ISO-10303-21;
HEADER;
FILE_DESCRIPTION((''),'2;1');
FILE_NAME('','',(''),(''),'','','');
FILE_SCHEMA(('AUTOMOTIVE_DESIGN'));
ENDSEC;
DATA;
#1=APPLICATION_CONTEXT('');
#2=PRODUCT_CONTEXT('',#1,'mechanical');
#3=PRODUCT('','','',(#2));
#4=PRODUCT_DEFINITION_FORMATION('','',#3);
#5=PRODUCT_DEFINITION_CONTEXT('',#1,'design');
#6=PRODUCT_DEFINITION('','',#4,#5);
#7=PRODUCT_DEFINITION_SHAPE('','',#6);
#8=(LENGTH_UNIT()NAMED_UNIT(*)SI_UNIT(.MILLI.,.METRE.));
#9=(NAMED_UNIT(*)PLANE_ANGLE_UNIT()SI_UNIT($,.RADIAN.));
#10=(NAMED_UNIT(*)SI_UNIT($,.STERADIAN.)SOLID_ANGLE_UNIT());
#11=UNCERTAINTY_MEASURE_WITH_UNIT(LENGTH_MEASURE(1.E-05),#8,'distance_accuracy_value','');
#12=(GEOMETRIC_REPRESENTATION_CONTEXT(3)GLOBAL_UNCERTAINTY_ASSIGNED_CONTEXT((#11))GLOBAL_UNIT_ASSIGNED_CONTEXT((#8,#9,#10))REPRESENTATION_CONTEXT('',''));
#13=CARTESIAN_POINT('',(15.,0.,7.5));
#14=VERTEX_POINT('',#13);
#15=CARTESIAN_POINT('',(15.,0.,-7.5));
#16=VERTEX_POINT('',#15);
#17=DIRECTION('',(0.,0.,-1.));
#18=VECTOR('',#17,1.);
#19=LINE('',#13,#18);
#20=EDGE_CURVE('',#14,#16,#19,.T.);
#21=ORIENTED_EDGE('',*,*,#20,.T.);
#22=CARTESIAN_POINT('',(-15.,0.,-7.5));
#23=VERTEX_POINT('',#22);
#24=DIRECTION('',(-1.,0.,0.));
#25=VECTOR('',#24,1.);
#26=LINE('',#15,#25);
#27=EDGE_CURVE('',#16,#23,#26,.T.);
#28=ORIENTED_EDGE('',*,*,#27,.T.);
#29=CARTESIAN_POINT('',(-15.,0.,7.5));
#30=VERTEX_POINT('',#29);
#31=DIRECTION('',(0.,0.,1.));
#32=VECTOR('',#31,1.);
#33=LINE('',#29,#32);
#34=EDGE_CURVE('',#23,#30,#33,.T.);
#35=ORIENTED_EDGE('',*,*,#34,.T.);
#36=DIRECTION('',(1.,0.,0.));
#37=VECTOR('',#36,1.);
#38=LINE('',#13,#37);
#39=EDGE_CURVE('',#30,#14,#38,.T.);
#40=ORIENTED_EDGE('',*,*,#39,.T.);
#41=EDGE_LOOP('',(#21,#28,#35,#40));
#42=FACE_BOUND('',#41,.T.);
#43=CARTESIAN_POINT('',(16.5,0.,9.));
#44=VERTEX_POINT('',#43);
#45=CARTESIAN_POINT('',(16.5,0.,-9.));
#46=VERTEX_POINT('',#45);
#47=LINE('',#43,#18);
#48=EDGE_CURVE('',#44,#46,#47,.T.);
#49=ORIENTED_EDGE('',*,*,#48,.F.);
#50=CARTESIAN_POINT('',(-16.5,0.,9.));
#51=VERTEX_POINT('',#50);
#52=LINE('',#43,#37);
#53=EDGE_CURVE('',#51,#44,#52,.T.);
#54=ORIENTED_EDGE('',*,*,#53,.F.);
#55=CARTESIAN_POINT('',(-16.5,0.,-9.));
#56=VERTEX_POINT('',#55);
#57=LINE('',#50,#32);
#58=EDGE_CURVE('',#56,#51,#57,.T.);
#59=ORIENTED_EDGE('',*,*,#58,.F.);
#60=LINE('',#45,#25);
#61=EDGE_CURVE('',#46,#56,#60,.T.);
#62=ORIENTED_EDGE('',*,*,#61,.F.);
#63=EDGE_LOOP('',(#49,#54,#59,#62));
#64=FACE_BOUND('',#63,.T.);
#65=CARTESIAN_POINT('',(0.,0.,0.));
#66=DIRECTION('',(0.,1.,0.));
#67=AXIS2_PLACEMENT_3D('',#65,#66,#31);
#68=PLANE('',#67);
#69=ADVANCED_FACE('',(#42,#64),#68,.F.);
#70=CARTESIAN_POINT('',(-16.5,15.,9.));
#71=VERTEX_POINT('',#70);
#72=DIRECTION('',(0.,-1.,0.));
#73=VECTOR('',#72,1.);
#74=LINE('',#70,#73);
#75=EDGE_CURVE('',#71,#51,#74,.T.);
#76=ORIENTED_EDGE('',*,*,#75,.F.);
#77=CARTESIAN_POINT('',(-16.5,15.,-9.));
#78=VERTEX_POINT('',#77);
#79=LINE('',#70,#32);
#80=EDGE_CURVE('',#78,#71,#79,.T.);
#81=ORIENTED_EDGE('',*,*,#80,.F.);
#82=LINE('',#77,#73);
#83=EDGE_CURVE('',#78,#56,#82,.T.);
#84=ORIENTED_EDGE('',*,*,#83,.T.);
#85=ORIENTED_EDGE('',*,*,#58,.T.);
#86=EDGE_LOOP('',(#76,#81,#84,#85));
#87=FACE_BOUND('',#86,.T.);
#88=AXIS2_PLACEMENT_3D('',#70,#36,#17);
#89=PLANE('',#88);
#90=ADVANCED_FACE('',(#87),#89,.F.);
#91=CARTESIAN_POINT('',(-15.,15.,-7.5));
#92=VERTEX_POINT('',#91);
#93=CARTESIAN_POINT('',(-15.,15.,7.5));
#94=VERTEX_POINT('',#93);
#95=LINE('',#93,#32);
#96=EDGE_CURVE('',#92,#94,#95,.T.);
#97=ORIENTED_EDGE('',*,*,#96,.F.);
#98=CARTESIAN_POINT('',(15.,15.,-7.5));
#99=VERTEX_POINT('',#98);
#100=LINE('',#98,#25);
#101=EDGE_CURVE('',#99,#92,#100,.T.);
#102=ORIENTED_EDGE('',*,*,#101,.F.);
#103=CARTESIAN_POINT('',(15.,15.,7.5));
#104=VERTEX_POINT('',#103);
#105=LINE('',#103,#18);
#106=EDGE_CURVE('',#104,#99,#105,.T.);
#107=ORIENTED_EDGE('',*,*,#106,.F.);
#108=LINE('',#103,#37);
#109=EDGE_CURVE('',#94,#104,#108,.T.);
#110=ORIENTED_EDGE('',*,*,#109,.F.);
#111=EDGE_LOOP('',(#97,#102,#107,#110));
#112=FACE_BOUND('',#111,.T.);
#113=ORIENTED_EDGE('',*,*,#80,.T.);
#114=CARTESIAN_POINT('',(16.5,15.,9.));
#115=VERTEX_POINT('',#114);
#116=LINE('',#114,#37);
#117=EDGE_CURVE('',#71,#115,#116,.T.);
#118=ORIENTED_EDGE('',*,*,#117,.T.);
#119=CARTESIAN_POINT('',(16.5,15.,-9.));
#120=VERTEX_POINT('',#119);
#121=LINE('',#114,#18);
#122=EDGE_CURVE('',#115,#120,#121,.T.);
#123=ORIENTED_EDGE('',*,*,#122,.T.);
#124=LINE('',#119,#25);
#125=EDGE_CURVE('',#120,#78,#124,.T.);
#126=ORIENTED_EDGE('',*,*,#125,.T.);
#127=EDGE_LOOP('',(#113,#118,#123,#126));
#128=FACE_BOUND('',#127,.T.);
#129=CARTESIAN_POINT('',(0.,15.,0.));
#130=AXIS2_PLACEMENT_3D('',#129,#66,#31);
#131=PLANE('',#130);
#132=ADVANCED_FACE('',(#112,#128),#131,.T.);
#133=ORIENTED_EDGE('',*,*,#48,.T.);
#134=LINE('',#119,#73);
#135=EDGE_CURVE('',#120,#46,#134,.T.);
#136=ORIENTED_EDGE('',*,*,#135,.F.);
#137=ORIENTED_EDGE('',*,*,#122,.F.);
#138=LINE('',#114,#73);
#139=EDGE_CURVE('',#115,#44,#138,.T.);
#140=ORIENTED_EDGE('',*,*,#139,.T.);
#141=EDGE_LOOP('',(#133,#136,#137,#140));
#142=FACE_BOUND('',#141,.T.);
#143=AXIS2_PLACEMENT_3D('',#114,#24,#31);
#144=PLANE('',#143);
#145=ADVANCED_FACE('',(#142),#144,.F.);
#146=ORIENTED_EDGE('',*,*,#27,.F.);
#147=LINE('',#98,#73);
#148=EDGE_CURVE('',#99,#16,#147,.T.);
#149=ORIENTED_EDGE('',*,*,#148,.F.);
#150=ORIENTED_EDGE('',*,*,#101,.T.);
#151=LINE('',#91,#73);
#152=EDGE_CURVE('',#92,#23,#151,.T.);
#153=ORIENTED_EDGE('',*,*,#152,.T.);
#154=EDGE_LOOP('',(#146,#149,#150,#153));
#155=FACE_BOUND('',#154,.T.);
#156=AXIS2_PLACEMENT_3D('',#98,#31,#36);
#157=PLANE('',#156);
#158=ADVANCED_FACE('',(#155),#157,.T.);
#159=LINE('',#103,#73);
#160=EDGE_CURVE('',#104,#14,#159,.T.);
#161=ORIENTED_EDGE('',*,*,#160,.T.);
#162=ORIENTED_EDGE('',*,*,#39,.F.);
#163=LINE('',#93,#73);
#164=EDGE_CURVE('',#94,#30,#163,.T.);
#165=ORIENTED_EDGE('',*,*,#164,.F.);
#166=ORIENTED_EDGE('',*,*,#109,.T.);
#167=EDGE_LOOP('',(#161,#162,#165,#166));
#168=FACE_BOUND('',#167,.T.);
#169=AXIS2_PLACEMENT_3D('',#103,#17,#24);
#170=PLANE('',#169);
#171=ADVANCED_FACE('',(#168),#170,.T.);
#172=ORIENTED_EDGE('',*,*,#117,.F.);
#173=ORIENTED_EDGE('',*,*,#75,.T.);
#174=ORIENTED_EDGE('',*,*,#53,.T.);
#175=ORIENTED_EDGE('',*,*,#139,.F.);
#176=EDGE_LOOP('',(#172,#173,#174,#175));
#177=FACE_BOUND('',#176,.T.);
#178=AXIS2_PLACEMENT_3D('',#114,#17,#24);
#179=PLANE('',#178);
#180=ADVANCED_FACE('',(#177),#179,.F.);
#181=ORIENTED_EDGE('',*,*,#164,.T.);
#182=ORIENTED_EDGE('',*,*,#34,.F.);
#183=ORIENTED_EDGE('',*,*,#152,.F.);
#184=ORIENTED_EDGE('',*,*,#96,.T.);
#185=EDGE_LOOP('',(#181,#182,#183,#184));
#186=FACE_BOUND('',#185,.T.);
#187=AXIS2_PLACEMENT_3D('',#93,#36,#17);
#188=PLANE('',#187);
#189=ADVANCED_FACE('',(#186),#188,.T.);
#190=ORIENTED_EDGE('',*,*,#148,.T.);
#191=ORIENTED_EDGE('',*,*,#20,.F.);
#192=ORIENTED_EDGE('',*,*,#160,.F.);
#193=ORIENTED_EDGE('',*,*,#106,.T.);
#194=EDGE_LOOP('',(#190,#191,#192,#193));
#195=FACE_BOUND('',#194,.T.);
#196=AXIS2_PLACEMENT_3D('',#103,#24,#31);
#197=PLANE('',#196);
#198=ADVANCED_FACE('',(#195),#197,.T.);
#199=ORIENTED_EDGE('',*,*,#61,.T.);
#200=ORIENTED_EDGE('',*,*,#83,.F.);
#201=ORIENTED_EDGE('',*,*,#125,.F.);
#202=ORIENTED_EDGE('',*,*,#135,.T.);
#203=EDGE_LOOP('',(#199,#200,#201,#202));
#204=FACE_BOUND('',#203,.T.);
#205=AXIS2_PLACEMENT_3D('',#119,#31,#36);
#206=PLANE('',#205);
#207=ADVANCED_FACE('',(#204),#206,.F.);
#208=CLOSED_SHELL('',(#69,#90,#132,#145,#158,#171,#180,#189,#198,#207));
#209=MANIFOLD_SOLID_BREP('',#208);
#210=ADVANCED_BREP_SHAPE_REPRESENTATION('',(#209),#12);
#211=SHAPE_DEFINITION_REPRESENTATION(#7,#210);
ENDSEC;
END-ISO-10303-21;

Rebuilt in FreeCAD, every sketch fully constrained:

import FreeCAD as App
import Part
import Sketcher

V = App.Vector
Q = App.Units.Quantity

doc = App.newDocument("Part")
body = doc.addObject("PartDesign::Body", "Body")

# Sketch on XZ plane
sketch1 = doc.addObject("Sketcher::SketchObject", "Sketch")
body.addObject(sketch1)
sketch1.AttachmentSupport = (doc.XZ_Plane, [""])
sketch1.MapMode = "FlatFace"
sketch1.addGeometry(Part.LineSegment(V(-16, -9, 0), V(-16, 9, 0)), False)
sketch1.addGeometry(Part.LineSegment(V(-16, 9, 0), V(16, 9, 0)), False)
sketch1.addGeometry(Part.LineSegment(V(16, 9, 0), V(16, -9, 0)), False)
sketch1.addGeometry(Part.LineSegment(V(16, -9, 0), V(-16, -9, 0)), False)
sketch1.addGeometry(Part.LineSegment(V(15, 8, 0), V(-15, 8, 0)), False)
sketch1.addGeometry(Part.LineSegment(V(-15, 8, 0), V(-15, -8, 0)), False)
sketch1.addGeometry(Part.LineSegment(V(-15, -8, 0), V(15, -8, 0)), False)
sketch1.addGeometry(Part.LineSegment(V(15, -8, 0), V(15, 8, 0)), False)
sketch1.addConstraint(Sketcher.Constraint("Coincident", 0, 2, 1, 1))
sketch1.addConstraint(Sketcher.Constraint("Coincident", 1, 2, 2, 1))
sketch1.addConstraint(Sketcher.Constraint("Coincident", 2, 2, 3, 1))
sketch1.addConstraint(Sketcher.Constraint("Coincident", 3, 2, 0, 1))
sketch1.addConstraint(Sketcher.Constraint("Coincident", 4, 2, 5, 1))
sketch1.addConstraint(Sketcher.Constraint("Coincident", 5, 2, 6, 1))
sketch1.addConstraint(Sketcher.Constraint("Coincident", 6, 2, 7, 1))
sketch1.addConstraint(Sketcher.Constraint("Coincident", 7, 2, 4, 1))
sketch1.addConstraint(Sketcher.Constraint("Vertical", 0))
sketch1.addConstraint(Sketcher.Constraint("Horizontal", 1))
sketch1.addConstraint(Sketcher.Constraint("Vertical", 2))
sketch1.addConstraint(Sketcher.Constraint("Horizontal", 3))
sketch1.addConstraint(Sketcher.Constraint("Horizontal", 4))
sketch1.addConstraint(Sketcher.Constraint("Vertical", 5))
sketch1.addConstraint(Sketcher.Constraint("Horizontal", 6))
sketch1.addConstraint(Sketcher.Constraint("Vertical", 7))
sketch1.addConstraint(Sketcher.Constraint("Symmetric", 0, 2, 2, 2, -1, 1))
sketch1.addConstraint(Sketcher.Constraint("Symmetric", 4, 2, 6, 2, -1, 1))
sketch1.addConstraint(Sketcher.Constraint("DistanceX", 1, 1, 1, 2, Q("33 mm")))
sketch1.addConstraint(Sketcher.Constraint("DistanceX", 4, 2, 4, 1, Q("30 mm")))
sketch1.addConstraint(Sketcher.Constraint("DistanceY", 0, 1, 0, 2, Q("18 mm")))
sketch1.addConstraint(Sketcher.Constraint("DistanceY", 5, 2, 5, 1, Q("15 mm")))
pad1 = doc.addObject("PartDesign::Pad", "Pad")
body.addObject(pad1)
pad1.Profile = sketch1
pad1.Length = 15
pad1.Reversed = True

doc.recompute()
